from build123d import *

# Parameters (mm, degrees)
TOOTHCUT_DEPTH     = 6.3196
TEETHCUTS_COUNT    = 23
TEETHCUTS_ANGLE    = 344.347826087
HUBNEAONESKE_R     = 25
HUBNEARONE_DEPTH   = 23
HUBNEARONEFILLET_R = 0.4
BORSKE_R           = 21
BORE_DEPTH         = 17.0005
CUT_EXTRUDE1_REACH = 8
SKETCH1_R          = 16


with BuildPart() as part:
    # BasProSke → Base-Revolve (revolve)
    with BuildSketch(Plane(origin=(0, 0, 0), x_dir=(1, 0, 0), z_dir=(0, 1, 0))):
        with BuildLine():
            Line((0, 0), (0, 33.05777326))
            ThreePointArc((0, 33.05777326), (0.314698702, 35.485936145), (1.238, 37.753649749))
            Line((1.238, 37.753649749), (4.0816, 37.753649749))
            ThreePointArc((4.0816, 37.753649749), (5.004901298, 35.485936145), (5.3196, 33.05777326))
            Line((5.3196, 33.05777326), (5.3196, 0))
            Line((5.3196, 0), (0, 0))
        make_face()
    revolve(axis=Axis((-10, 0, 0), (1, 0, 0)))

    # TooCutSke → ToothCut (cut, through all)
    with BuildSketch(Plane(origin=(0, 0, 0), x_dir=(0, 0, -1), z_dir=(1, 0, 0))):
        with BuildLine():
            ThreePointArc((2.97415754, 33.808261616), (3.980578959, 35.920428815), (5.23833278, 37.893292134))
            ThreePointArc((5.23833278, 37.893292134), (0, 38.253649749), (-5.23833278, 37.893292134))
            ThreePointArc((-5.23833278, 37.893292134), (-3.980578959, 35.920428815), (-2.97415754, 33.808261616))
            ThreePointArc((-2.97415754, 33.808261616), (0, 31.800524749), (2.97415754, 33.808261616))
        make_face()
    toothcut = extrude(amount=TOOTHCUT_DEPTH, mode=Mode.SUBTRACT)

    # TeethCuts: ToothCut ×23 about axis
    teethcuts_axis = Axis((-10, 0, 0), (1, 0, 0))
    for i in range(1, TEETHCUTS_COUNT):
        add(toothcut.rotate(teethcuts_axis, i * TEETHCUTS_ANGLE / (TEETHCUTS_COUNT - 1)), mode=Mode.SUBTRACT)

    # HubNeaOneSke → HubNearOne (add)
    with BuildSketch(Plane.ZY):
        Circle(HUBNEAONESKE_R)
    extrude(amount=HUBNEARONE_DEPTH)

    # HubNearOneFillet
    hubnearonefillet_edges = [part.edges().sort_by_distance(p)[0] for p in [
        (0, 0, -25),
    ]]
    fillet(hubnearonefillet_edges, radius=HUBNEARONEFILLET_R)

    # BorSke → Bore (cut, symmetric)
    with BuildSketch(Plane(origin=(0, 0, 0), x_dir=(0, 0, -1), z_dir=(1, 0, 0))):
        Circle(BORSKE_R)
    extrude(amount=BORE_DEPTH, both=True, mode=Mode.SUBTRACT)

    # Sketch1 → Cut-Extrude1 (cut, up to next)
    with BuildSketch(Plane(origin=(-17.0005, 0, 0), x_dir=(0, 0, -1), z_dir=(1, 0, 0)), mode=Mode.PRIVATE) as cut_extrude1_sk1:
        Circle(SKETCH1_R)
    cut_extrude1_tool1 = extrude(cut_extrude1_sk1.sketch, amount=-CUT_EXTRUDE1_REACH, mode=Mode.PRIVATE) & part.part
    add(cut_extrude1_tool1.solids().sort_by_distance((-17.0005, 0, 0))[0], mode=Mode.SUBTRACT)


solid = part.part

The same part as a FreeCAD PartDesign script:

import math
import FreeCAD as App
import Part
import Sketcher
from FreeCAD import Vector
Q = App.Units.Quantity


def edges_at(feature, points):
    """Names of the edges that pass closest to the given points."""
    edges = feature.Shape.Edges
    near = lambda p: min(range(len(edges)), key=lambda i: edges[i].distToShape(Part.Vertex(*p))[0])
    return sorted({f"Edge{near(p) + 1}" for p in points})

doc = App.newDocument("Part")
body = doc.addObject("PartDesign::Body", "Body")

# Sketch on XZ plane
sketch1 = body.newObject("Sketcher::SketchObject", "Sketch")
sketch1.AttachmentSupport = (doc.getObject("XZ_Plane"), [""])
sketch1.MapMode = "FlatFace"
sketch1.addGeometry(Part.LineSegment(Vector(0, -33.1, 0), Vector(0, 0, 0)), False)
sketch1.addGeometry(Part.LineSegment(Vector(0, 0, 0), Vector(5.3, 0, 0)), False)
sketch1.addGeometry(Part.LineSegment(Vector(5.3, 0, 0), Vector(5.3, -33.1, 0)), False)
sketch1.addGeometry(Part.ArcOfCircle(Part.Circle(Vector(-4.2, -33.1, 0), Vector(0, 0, 1), 9.5), math.radians(-30), math.radians(0)), False)
sketch1.addGeometry(Part.LineSegment(Vector(4.1, -37.8, 0), Vector(1.2, -37.8, 0)), False)
sketch1.addGeometry(Part.ArcOfCircle(Part.Circle(Vector(9.5, -33.1, 0), Vector(0, 0, 1), 9.5), math.radians(-180), math.radians(-150)), False)
sketch1.addConstraint(Sketcher.Constraint("Coincident", 0, 2, 1, 1))
sketch1.addConstraint(Sketcher.Constraint("Coincident", 1, 2, 2, 1))
sketch1.addConstraint(Sketcher.Constraint("Tangent", 2, 2, 3, 2))
sketch1.addConstraint(Sketcher.Constraint("Coincident", 3, 1, 4, 1))
sketch1.addConstraint(Sketcher.Constraint("Coincident", 4, 2, 5, 2))
sketch1.addConstraint(Sketcher.Constraint("Tangent", 5, 1, 0, 1))
sketch1.addConstraint(Sketcher.Constraint("Vertical", 0))
sketch1.addConstraint(Sketcher.Constraint("Horizontal", 1))
sketch1.addConstraint(Sketcher.Constraint("Vertical", 2))
sketch1.addConstraint(Sketcher.Constraint("Horizontal", 4))
sketch1.addConstraint(Sketcher.Constraint("Coincident", 0, 2, -1, 1))
sketch1.addConstraint(Sketcher.Constraint("Equal", 3, 5))
sketch1.addConstraint(Sketcher.Constraint("Horizontal", 3, 3, 5, 3))
sketch1.addConstraint(Sketcher.Constraint("Radius", 3, Q("9.525 mm")))
sketch1.addConstraint(Sketcher.Constraint("DistanceX", 1, 1, 1, 2, Q("5.3196 mm")))
sketch1.addConstraint(Sketcher.Constraint("DistanceX", 4, 2, 4, 1, Q("2.8436 mm")))
sketch1.addConstraint(Sketcher.Constraint("DistanceY", 0, 1, 0, 2, Q("33.057773 mm")))
revolution = body.newObject("PartDesign::Revolution", "Revolution")
revolution.Profile = sketch1
revolution.ReferenceAxis = (sketch1, ["H_Axis"])
revolution.Angle = 360

# Sketch on YZ plane
sketch2 = body.newObject("Sketcher::SketchObject", "Sketch001")
sketch2.AttachmentSupport = (doc.getObject("YZ_Plane"), [""])
sketch2.MapMode = "FlatFace"
sketch2.addGeometry(Part.ArcOfCircle(Part.Circle(Vector(26.7, -20.6, 0), Vector(0, 0, 1), 19.1), math.radians(53.96), math.radians(68.04)), False)
sketch2.addGeometry(Part.ArcOfCircle(Part.Circle(Vector(0, 0, 0), Vector(0, 0, 1), 38.3), math.radians(-7.87), math.radians(7.87)), False)
sketch2.addGeometry(Part.ArcOfCircle(Part.Circle(Vector(26.7, 20.6, 0), Vector(0, 0, 1), 19.1), math.radians(-68.04), math.radians(-53.96)), False)
sketch2.addGeometry(Part.ArcOfCircle(Part.Circle(Vector(35, 0, 0), Vector(0, 0, 1), 3.2), math.radians(112), math.radians(248)), False)
sketch2.addConstraint(Sketcher.Constraint("Coincident", 0, 1, 1, 1))
sketch2.addConstraint(Sketcher.Constraint("Coincident", 1, 2, 2, 2))
sketch2.addConstraint(Sketcher.Constraint("Tangent", 2, 1, 3, 1))
sketch2.addConstraint(Sketcher.Constraint("Tangent", 3, 2, 0, 2))
sketch2.addConstraint(Sketcher.Constraint("Coincident", 1, 3, -1, 1))
sketch2.addConstraint(Sketcher.Constraint("Equal", 0, 2))
sketch2.addConstraint(Sketcher.Constraint("Symmetric", 0, 3, 2, 3, -1))
sketch2.addConstraint(Sketcher.Constraint("Radius", 0, Q("19.05 mm")))
sketch2.addConstraint(Sketcher.Constraint("Radius", 1, Q("38.25365 mm")))
sketch2.addConstraint(Sketcher.Constraint("Radius", 3, Q("3.20675 mm")))
sketch2.addConstraint(Sketcher.Constraint("DistanceX", -1, 1, 0, 3, Q("26.685411 mm")))
sketch2.addConstraint(Sketcher.Constraint("DistanceY", 0, 3, -1, 1, Q("20.64242 mm")))
pocket1 = body.newObject("PartDesign::Pocket", "Pocket")
pocket1.Profile = sketch2
pocket1.Type = "ThroughAll"
pocket1.Reversed = True
doc.recompute()

polarpattern = body.newObject("PartDesign::PolarPattern", "PolarPattern")
polarpattern.Originals = [pocket1]
polarpattern.Axis = (doc.getObject("X_Axis"), [""])
polarpattern.Angle = 360
polarpattern.Occurrences = 23
body.Tip = polarpattern

# Sketch on YZ plane
sketch3 = body.newObject("Sketcher::SketchObject", "Sketch002")
sketch3.AttachmentSupport = (doc.getObject("YZ_Plane"), [""])
sketch3.MapMode = "FlatFace"
sketch3.addGeometry(Part.Circle(Vector(0, 0, 0), Vector(0, 0, 1), 25), False)
sketch3.addConstraint(Sketcher.Constraint("Coincident", 0, 3, -1, 1))
sketch3.addConstraint(Sketcher.Constraint("Diameter", 0, Q("50 mm")))
pad1 = body.newObject("PartDesign::Pad", "Pad")
pad1.Profile = sketch3
pad1.Length = 23
pad1.Reversed = True
doc.recompute()

fillet = body.newObject("PartDesign::Fillet", "Fillet")
fillet.Base = (pad1, edges_at(pad1, [(0, 0, -25)]))
fillet.Radius = 0.4

# Sketch on YZ plane
sketch4 = body.newObject("Sketcher::SketchObject", "Sketch003")
sketch4.AttachmentSupport = (doc.getObject("YZ_Plane"), [""])
sketch4.MapMode = "FlatFace"
sketch4.addGeometry(Part.Circle(Vector(0, 0, 0), Vector(0, 0, 1), 21), False)
sketch4.addConstraint(Sketcher.Constraint("Coincident", 0, 3, -1, 1))
sketch4.addConstraint(Sketcher.Constraint("Diameter", 0, Q("42 mm")))
pocket2 = body.newObject("PartDesign::Pocket", "Pocket001")
pocket2.Profile = sketch4
pocket2.Length = 34.001
pocket2.Midplane = True

# Sketch on YZ plane
sketch5 = body.newObject("Sketcher::SketchObject", "Sketch004")
sketch5.AttachmentSupport = (doc.getObject("YZ_Plane"), [""])
sketch5.MapMode = "FlatFace"
sketch5.AttachmentOffset = App.Placement(Vector(0, 0, -17.0005), App.Rotation())
sketch5.addGeometry(Part.Circle(Vector(0, 0, 0), Vector(0, 0, 1), 16), False)
sketch5.addConstraint(Sketcher.Constraint("Coincident", 0, 3, -1, 1))
sketch5.addConstraint(Sketcher.Constraint("Diameter", 0, Q("32 mm")))
pocket3 = body.newObject("PartDesign::Pocket", "Pocket002")
pocket3.Profile = sketch5
pocket3.Type = "UpToFirst"

doc.recompute()
